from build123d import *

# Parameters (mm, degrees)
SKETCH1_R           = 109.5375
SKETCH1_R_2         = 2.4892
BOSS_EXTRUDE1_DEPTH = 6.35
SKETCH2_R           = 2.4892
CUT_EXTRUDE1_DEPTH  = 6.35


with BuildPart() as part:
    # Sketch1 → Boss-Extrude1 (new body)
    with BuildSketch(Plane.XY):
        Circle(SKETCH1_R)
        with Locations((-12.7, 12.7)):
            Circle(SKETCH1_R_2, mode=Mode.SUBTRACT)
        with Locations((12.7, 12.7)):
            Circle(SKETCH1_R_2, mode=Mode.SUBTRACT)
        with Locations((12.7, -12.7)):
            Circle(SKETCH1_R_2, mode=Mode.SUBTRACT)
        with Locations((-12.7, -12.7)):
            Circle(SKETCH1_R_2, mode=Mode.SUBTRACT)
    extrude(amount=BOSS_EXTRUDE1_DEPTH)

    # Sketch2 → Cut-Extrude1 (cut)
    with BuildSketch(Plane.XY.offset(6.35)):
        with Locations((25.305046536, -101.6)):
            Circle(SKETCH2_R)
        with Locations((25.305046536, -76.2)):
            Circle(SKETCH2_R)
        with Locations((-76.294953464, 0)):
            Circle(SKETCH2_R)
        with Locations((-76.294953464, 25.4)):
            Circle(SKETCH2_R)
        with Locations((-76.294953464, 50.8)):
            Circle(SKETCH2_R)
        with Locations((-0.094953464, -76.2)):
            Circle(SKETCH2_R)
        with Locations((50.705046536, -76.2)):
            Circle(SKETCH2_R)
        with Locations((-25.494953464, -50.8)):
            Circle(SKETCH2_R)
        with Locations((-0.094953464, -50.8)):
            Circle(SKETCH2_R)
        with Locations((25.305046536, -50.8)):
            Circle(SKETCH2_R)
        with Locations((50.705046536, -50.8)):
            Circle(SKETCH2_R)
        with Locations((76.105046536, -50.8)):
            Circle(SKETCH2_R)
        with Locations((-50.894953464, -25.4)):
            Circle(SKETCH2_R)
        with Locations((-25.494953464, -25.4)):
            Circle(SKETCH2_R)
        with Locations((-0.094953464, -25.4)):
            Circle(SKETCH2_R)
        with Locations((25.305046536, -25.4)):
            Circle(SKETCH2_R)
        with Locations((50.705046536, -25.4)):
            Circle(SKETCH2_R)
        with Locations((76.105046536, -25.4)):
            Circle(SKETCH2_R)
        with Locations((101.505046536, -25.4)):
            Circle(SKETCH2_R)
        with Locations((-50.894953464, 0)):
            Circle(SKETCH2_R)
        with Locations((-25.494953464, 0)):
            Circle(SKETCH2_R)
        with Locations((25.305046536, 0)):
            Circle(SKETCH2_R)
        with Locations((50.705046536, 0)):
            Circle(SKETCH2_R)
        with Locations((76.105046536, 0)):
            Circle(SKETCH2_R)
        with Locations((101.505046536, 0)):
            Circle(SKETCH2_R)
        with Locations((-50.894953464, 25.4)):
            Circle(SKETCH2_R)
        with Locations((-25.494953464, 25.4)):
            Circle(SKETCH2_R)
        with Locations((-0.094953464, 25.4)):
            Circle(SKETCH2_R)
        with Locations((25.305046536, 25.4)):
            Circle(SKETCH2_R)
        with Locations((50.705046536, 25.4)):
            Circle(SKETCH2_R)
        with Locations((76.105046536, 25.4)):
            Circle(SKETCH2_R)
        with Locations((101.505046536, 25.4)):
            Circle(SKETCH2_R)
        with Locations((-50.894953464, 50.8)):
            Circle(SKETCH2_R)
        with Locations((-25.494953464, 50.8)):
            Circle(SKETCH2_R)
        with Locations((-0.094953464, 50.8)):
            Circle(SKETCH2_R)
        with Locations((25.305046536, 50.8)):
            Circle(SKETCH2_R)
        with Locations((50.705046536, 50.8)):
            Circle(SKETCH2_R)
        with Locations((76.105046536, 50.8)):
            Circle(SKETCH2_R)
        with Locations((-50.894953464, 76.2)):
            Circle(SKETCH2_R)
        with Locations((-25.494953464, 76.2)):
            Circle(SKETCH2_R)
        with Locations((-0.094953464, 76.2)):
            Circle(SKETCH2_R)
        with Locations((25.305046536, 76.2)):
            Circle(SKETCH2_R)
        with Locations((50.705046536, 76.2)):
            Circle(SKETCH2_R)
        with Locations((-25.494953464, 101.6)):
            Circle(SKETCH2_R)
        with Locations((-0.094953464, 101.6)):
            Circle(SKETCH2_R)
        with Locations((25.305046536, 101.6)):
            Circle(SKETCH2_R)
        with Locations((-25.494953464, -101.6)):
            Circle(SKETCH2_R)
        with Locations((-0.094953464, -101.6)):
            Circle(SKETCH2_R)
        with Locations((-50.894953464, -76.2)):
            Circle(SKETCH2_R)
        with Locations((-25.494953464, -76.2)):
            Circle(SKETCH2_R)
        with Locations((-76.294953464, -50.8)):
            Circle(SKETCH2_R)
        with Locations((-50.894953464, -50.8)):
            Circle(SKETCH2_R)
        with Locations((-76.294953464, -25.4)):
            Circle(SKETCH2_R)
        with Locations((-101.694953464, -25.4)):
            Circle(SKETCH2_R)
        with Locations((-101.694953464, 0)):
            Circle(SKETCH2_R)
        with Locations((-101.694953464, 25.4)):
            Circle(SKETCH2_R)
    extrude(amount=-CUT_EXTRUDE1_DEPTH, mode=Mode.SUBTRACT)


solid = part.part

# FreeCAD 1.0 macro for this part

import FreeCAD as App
import Part
import Sketcher

V = App.Vector
Q = App.Units.Quantity

doc = App.newDocument("Part")
body = doc.addObject("PartDesign::Body", "Body")

sketch1 = body.newObject("Sketcher::SketchObject", "Sketch")
sketch1.AttachmentSupport = (doc.getObject("XY_Plane"), [""])
sketch1.MapMode = "FlatFace"
sketch1.addGeometry([
    Part.Circle(V(0, 0, 0), V(0, 0, 1), 109.5),
    Part.Circle(V(-12.7, -12.7, 0), V(0, 0, 1), 2.5),
    Part.Circle(V(12.7, -12.7, 0), V(0, 0, 1), 2.5),
    Part.Circle(V(-12.7, 12.7, 0), V(0, 0, 1), 2.5),
    Part.Circle(V(12.7, 12.7, 0), V(0, 0, 1), 2.5),
], False)
sketch1.addConstraint([
    Sketcher.Constraint("Coincident", 0, 3, -1, 1),
    Sketcher.Constraint("Equal", 1, 2),
    Sketcher.Constraint("Equal", 2, 3),
    Sketcher.Constraint("Equal", 3, 4),
    Sketcher.Constraint("Symmetric", 2, 3, 3, 3, -1, 1),
    Sketcher.Constraint("Symmetric", 1, 3, 4, 3, -1, 1),
    Sketcher.Constraint("Symmetric", 1, 3, 2, 3, -2),
    Sketcher.Constraint("Diameter", 0, Q("8.625 in")),
    Sketcher.Constraint("Diameter", 1, Q("0.196 in")),
    Sketcher.Constraint("DistanceX", 1, 3, 2, 3, Q("1 in")),
    Sketcher.Constraint("DistanceY", 1, 3, 3, 3, Q("1 in")),
])
pad1 = body.newObject("PartDesign::Pad", "Pad")
pad1.Profile = sketch1
pad1.Length = Q("0.25 in")

sketch2 = body.newObject("Sketcher::SketchObject", "Sketch001")
sketch2.AttachmentSupport = (doc.getObject("XY_Plane"), [""])
sketch2.MapMode = "FlatFace"
sketch2.AttachmentOffset = App.Placement(V(0, 0, 0.25 * 25.4), App.Rotation())
sketch2.addGeometry([
    Part.Circle(V(25.3, -101.6, 0), V(0, 0, 1), 2.5),
    Part.Circle(V(25.3, -76.2, 0), V(0, 0, 1), 2.5),
    Part.Circle(V(-76.3, 0, 0), V(0, 0, 1), 2.5),
    Part.Circle(V(-76.3, 25.4, 0), V(0, 0, 1), 2.5),
    Part.Circle(V(-76.3, 50.8, 0), V(0, 0, 1), 2.5),
    Part.Circle(V(-0.1, -76.2, 0), V(0, 0, 1), 2.5),
    Part.Circle(V(50.7, -76.2, 0), V(0, 0, 1), 2.5),
    Part.Circle(V(-25.5, -50.8, 0), V(0, 0, 1), 2.5),
    Part.Circle(V(-0.1, -50.8, 0), V(0, 0, 1), 2.5),
    Part.Circle(V(25.3, -50.8, 0), V(0, 0, 1), 2.5),
    Part.Circle(V(50.7, -50.8, 0), V(0, 0, 1), 2.5),
    Part.Circle(V(76.1, -50.8, 0), V(0, 0, 1), 2.5),
    Part.Circle(V(-50.9, -25.4, 0), V(0, 0, 1), 2.5),
    Part.Circle(V(-25.5, -25.4, 0), V(0, 0, 1), 2.5),
    Part.Circle(V(-0.1, -25.4, 0), V(0, 0, 1), 2.5),
    Part.Circle(V(25.3, -25.4, 0), V(0, 0, 1), 2.5),
    Part.Circle(V(50.7, -25.4, 0), V(0, 0, 1), 2.5),
    Part.Circle(V(76.1, -25.4, 0), V(0, 0, 1), 2.5),
    Part.Circle(V(101.5, -25.4, 0), V(0, 0, 1), 2.5),
    Part.Circle(V(-50.9, 0, 0), V(0, 0, 1), 2.5),
    Part.Circle(V(-25.5, 0, 0), V(0, 0, 1), 2.5),
    Part.Circle(V(25.3, 0, 0), V(0, 0, 1), 2.5),
    Part.Circle(V(50.7, 0, 0), V(0, 0, 1), 2.5),
    Part.Circle(V(76.1, 0, 0), V(0, 0, 1), 2.5),
    Part.Circle(V(101.5, 0, 0), V(0, 0, 1), 2.5),
    Part.Circle(V(-50.9, 25.4, 0), V(0, 0, 1), 2.5),
    Part.Circle(V(-25.5, 25.4, 0), V(0, 0, 1), 2.5),
    Part.Circle(V(-0.1, 25.4, 0), V(0, 0, 1), 2.5),
    Part.Circle(V(25.3, 25.4, 0), V(0, 0, 1), 2.5),
    Part.Circle(V(50.7, 25.4, 0), V(0, 0, 1), 2.5),
    Part.Circle(V(76.1, 25.4, 0), V(0, 0, 1), 2.5),
    Part.Circle(V(101.5, 25.4, 0), V(0, 0, 1), 2.5),
    Part.Circle(V(-50.9, 50.8, 0), V(0, 0, 1), 2.5),
    Part.Circle(V(-25.5, 50.8, 0), V(0, 0, 1), 2.5),
    Part.Circle(V(-0.1, 50.8, 0), V(0, 0, 1), 2.5),
    Part.Circle(V(25.3, 50.8, 0), V(0, 0, 1), 2.5),
    Part.Circle(V(50.7, 50.8, 0), V(0, 0, 1), 2.5),
    Part.Circle(V(76.1, 50.8, 0), V(0, 0, 1), 2.5),
    Part.Circle(V(-50.9, 76.2, 0), V(0, 0, 1), 2.5),
    Part.Circle(V(-25.5, 76.2, 0), V(0, 0, 1), 2.5),
    Part.Circle(V(-0.1, 76.2, 0), V(0, 0, 1), 2.5),
    Part.Circle(V(25.3, 76.2, 0), V(0, 0, 1), 2.5),
    Part.Circle(V(50.7, 76.2, 0), V(0, 0, 1), 2.5),
    Part.Circle(V(-25.5, 101.6, 0), V(0, 0, 1), 2.5),
    Part.Circle(V(-0.1, 101.6, 0), V(0, 0, 1), 2.5),
    Part.Circle(V(25.3, 101.6, 0), V(0, 0, 1), 2.5),
    Part.Circle(V(-25.5, -101.6, 0), V(0, 0, 1), 2.5),
    Part.Circle(V(-0.1, -101.6, 0), V(0, 0, 1), 2.5),
    Part.Circle(V(-50.9, -76.2, 0), V(0, 0, 1), 2.5),
    Part.Circle(V(-25.5, -76.2, 0), V(0, 0, 1), 2.5),
    Part.Circle(V(-76.3, -50.8, 0), V(0, 0, 1), 2.5),
    Part.Circle(V(-50.9, -50.8, 0), V(0, 0, 1), 2.5),
    Part.Circle(V(-76.3, -25.4, 0), V(0, 0, 1), 2.5),
    Part.Circle(V(-101.7, -25.4, 0), V(0, 0, 1), 2.5),
    Part.Circle(V(-101.7, 0, 0), V(0, 0, 1), 2.5),
    Part.Circle(V(-101.7, 25.4, 0), V(0, 0, 1), 2.5),
], False)
sketch2.addConstraint([
    Sketcher.Constraint("Equal", 0, 1),
    Sketcher.Constraint("Equal", 1, 2),
    Sketcher.Constraint("Equal", 2, 3),
    Sketcher.Constraint("Equal", 3, 4),
    Sketcher.Constraint("Equal", 4, 5),
    Sketcher.Constraint("Equal", 5, 6),
    Sketcher.Constraint("Equal", 6, 7),
    Sketcher.Constraint("Equal", 7, 8),
    Sketcher.Constraint("Equal", 8, 9),
    Sketcher.Constraint("Equal", 9, 10),
    Sketcher.Constraint("Equal", 10, 11),
    Sketcher.Constraint("Equal", 11, 12),
    Sketcher.Constraint("Equal", 12, 13),
    Sketcher.Constraint("Equal", 13, 14),
    Sketcher.Constraint("Equal", 14, 15),
    Sketcher.Constraint("Equal", 15, 16),
    Sketcher.Constraint("Equal", 16, 17),
    Sketcher.Constraint("Equal", 17, 18),
    Sketcher.Constraint("Equal", 18, 19),
    Sketcher.Constraint("Equal", 19, 20),
    Sketcher.Constraint("Equal", 20, 21),
    Sketcher.Constraint("Equal", 21, 22),
    Sketcher.Constraint("Equal", 22, 23),
    Sketcher.Constraint("Equal", 23, 24),
    Sketcher.Constraint("Equal", 24, 25),
    Sketcher.Constraint("Equal", 25, 26),
    Sketcher.Constraint("Equal", 26, 27),
    Sketcher.Constraint("Equal", 27, 28),
    Sketcher.Constraint("Equal", 28, 29),
    Sketcher.Constraint("Equal", 29, 30),
    Sketcher.Constraint("Equal", 30, 31),
    Sketcher.Constraint("Equal", 31, 32),
    Sketcher.Constraint("Equal", 32, 33),
    Sketcher.Constraint("Equal", 33, 34),
    Sketcher.Constraint("Equal", 34, 35),
    Sketcher.Constraint("Equal", 35, 36),
    Sketcher.Constraint("Equal", 36, 37),
    Sketcher.Constraint("Equal", 37, 38),
    Sketcher.Constraint("Equal", 38, 39),
    Sketcher.Constraint("Equal", 39, 40),
    Sketcher.Constraint("Equal", 40, 41),
    Sketcher.Constraint("Equal", 41, 42),
    Sketcher.Constraint("Equal", 42, 43),
    Sketcher.Constraint("Equal", 43, 44),
    Sketcher.Constraint("Equal", 44, 45),
    Sketcher.Constraint("Equal", 45, 46),
    Sketcher.Constraint("Equal", 46, 47),
    Sketcher.Constraint("Equal", 47, 48),
    Sketcher.Constraint("Equal", 48, 49),
    Sketcher.Constraint("Equal", 49, 50),
    Sketcher.Constraint("Equal", 50, 51),
    Sketcher.Constraint("Equal", 51, 52),
    Sketcher.Constraint("Equal", 52, 53),
    Sketcher.Constraint("Equal", 53, 54),
    Sketcher.Constraint("Equal", 54, 55),
    Sketcher.Constraint("Symmetric", 12, 3, 25, 3, -1),
    Sketcher.Constraint("Symmetric", 13, 3, 26, 3, -1),
    Sketcher.Constraint("Symmetric", 14, 3, 27, 3, -1),
    Sketcher.Constraint("Symmetric", 15, 3, 28, 3, -1),
    Sketcher.Constraint("Symmetric", 16, 3, 29, 3, -1),
    Sketcher.Constraint("Symmetric", 17, 3, 30, 3, -1),
    Sketcher.Constraint("Symmetric", 18, 3, 31, 3, -1),
    Sketcher.Constraint("Symmetric", 7, 3, 33, 3, -1),
    Sketcher.Constraint("Symmetric", 8, 3, 34, 3, -1),
    Sketcher.Constraint("Symmetric", 9, 3, 35, 3, -1),
    Sketcher.Constraint("Symmetric", 10, 3, 36, 3, -1),
    Sketcher.Constraint("Symmetric", 11, 3, 37, 3, -1),
    Sketcher.Constraint("Symmetric", 5, 3, 40, 3, -1),
    Sketcher.Constraint("Symmetric", 1, 3, 41, 3, -1),
    Sketcher.Constraint("Symmetric", 6, 3, 42, 3, -1),
    Sketcher.Constraint("Symmetric", 0, 3, 45, 3, -1),
    Sketcher.Constraint("Symmetric", 43, 3, 46, 3, -1),
    Sketcher.Constraint("Symmetric", 44, 3, 47, 3, -1),
    Sketcher.Constraint("Symmetric", 38, 3, 48, 3, -1),
    Sketcher.Constraint("Symmetric", 39, 3, 49, 3, -1),
    Sketcher.Constraint("Symmetric", 4, 3, 50, 3, -1),
    Sketcher.Constraint("Symmetric", 32, 3, 51, 3, -1),
    Sketcher.Constraint("Symmetric", 3, 3, 52, 3, -1),
    Sketcher.Constraint("Symmetric", 53, 3, 55, 3, -1),
    Sketcher.Constraint("PointOnObject", 2, 3, -1),
    Sketcher.Constraint("PointOnObject", 19, 3, -1),
    Sketcher.Constraint("PointOnObject", 20, 3, -1),
    Sketcher.Constraint("PointOnObject", 21, 3, -1),
    Sketcher.Constraint("PointOnObject", 22, 3, -1),
    Sketcher.Constraint("PointOnObject", 23, 3, -1),
    Sketcher.Constraint("PointOnObject", 24, 3, -1),
    Sketcher.Constraint("PointOnObject", 54, 3, -1),
    Sketcher.Constraint("Horizontal", 1, 3, 5, 3),
    Sketcher.Constraint("Horizontal", 5, 3, 6, 3),
    Sketcher.Constraint("Horizontal", 7, 3, 8, 3),
    Sketcher.Constraint("Horizontal", 8, 3, 9, 3),
    Sketcher.Constraint("Horizontal", 9, 3, 10, 3),
    Sketcher.Constraint("Horizontal", 10, 3, 11, 3),
    Sketcher.Constraint("Horizontal", 12, 3, 13, 3),
    Sketcher.Constraint("Horizontal", 13, 3, 14, 3),
    Sketcher.Constraint("Horizontal", 14, 3, 15, 3),
    Sketcher.Constraint("Horizontal", 15, 3, 16, 3),
    Sketcher.Constraint("Horizontal", 16, 3, 17, 3),
    Sketcher.Constraint("Horizontal", 17, 3, 18, 3),
    Sketcher.Constraint("Horizontal", 3, 3, 25, 3),
    Sketcher.Constraint("Horizontal", 4, 3, 32, 3),
    Sketcher.Constraint("Horizontal", 32, 3, 33, 3),
    Sketcher.Constraint("Horizontal", 38, 3, 39, 3),
    Sketcher.Constraint("Horizontal", 39, 3, 40, 3),
    Sketcher.Constraint("Horizontal", 43, 3, 44, 3),
    Sketcher.Constraint("Horizontal", 44, 3, 45, 3),
    Sketcher.Constraint("Horizontal", 52, 3, 53, 3),
    Sketcher.Constraint("Vertical", 0, 3, 1, 3),
    Sketcher.Constraint("Vertical", 2, 3, 3, 3),
    Sketcher.Constraint("Vertical", 3, 3, 4, 3),
    Sketcher.Constraint("Vertical", 5, 3, 8, 3),
    Sketcher.Constraint("Vertical", 1, 3, 9, 3),
    Sketcher.Constraint("Vertical", 6, 3, 10, 3),
    Sketcher.Constraint("Vertical", 7, 3, 13, 3),
    Sketcher.Constraint("Vertical", 8, 3, 14, 3),
    Sketcher.Constraint("Vertical", 9, 3, 15, 3),
    Sketcher.Constraint("Vertical", 10, 3, 16, 3),
    Sketcher.Constraint("Vertical", 11, 3, 17, 3),
    Sketcher.Constraint("Vertical", 12, 3, 19, 3),
    Sketcher.Constraint("Vertical", 13, 3, 20, 3),
    Sketcher.Constraint("Vertical", 15, 3, 21, 3),
    Sketcher.Constraint("Vertical", 16, 3, 22, 3),
    Sketcher.Constraint("Vertical", 17, 3, 23, 3),
    Sketcher.Constraint("Vertical", 18, 3, 24, 3),
    Sketcher.Constraint("Vertical", 25, 3, 32, 3),
    Sketcher.Constraint("Vertical", 32, 3, 38, 3),
    Sketcher.Constraint("Vertical", 33, 3, 39, 3),
    Sketcher.Constraint("Vertical", 39, 3, 43, 3),
    Sketcher.Constraint("Vertical", 40, 3, 44, 3),
    Sketcher.Constraint("Vertical", 53, 3, 54, 3),
    Sketcher.Constraint("Diameter", 0, Q("0.196 in")),
    Sketcher.Constraint("DistanceY", 0, 3, -1, 1, Q("4 in")),
    Sketcher.Constraint("DistanceY", 1, 3, -1, 1, Q("3 in")),
    Sketcher.Constraint("DistanceY", -1, 1, 3, 3, Q("1 in")),
    Sketcher.Constraint("DistanceY", -1, 1, 4, 3, Q("2 in")),
    Sketcher.Constraint("DistanceX", 2, 3, 1, 3, Q("4 in")),
    Sketcher.Constraint("DistanceX", 5, 3, 1, 3, Q("1 in")),
    Sketcher.Constraint("DistanceX", 1, 3, 6, 3, Q("1 in")),
    Sketcher.Constraint("DistanceX", 7, 3, 5, 3, Q("1 in")),
    Sketcher.Constraint("DistanceX", 10, 3, 11, 3, Q("1 in")),
    Sketcher.Constraint("DistanceX", 12, 3, 7, 3, Q("1 in")),
    Sketcher.Constraint("DistanceX", 17, 3, 18, 3, Q("1 in")),
    Sketcher.Constraint("DistanceX", 53, 3, 52, 3, Q("1 in")),
    Sketcher.Constraint("DistanceX", -1, 1, 0, 3, Q("25.305047 mm")),
])
pocket1 = body.newObject("PartDesign::Pocket", "Pocket")
pocket1.Profile = sketch2
pocket1.Length = Q("0.25 in")

doc.recompute()
